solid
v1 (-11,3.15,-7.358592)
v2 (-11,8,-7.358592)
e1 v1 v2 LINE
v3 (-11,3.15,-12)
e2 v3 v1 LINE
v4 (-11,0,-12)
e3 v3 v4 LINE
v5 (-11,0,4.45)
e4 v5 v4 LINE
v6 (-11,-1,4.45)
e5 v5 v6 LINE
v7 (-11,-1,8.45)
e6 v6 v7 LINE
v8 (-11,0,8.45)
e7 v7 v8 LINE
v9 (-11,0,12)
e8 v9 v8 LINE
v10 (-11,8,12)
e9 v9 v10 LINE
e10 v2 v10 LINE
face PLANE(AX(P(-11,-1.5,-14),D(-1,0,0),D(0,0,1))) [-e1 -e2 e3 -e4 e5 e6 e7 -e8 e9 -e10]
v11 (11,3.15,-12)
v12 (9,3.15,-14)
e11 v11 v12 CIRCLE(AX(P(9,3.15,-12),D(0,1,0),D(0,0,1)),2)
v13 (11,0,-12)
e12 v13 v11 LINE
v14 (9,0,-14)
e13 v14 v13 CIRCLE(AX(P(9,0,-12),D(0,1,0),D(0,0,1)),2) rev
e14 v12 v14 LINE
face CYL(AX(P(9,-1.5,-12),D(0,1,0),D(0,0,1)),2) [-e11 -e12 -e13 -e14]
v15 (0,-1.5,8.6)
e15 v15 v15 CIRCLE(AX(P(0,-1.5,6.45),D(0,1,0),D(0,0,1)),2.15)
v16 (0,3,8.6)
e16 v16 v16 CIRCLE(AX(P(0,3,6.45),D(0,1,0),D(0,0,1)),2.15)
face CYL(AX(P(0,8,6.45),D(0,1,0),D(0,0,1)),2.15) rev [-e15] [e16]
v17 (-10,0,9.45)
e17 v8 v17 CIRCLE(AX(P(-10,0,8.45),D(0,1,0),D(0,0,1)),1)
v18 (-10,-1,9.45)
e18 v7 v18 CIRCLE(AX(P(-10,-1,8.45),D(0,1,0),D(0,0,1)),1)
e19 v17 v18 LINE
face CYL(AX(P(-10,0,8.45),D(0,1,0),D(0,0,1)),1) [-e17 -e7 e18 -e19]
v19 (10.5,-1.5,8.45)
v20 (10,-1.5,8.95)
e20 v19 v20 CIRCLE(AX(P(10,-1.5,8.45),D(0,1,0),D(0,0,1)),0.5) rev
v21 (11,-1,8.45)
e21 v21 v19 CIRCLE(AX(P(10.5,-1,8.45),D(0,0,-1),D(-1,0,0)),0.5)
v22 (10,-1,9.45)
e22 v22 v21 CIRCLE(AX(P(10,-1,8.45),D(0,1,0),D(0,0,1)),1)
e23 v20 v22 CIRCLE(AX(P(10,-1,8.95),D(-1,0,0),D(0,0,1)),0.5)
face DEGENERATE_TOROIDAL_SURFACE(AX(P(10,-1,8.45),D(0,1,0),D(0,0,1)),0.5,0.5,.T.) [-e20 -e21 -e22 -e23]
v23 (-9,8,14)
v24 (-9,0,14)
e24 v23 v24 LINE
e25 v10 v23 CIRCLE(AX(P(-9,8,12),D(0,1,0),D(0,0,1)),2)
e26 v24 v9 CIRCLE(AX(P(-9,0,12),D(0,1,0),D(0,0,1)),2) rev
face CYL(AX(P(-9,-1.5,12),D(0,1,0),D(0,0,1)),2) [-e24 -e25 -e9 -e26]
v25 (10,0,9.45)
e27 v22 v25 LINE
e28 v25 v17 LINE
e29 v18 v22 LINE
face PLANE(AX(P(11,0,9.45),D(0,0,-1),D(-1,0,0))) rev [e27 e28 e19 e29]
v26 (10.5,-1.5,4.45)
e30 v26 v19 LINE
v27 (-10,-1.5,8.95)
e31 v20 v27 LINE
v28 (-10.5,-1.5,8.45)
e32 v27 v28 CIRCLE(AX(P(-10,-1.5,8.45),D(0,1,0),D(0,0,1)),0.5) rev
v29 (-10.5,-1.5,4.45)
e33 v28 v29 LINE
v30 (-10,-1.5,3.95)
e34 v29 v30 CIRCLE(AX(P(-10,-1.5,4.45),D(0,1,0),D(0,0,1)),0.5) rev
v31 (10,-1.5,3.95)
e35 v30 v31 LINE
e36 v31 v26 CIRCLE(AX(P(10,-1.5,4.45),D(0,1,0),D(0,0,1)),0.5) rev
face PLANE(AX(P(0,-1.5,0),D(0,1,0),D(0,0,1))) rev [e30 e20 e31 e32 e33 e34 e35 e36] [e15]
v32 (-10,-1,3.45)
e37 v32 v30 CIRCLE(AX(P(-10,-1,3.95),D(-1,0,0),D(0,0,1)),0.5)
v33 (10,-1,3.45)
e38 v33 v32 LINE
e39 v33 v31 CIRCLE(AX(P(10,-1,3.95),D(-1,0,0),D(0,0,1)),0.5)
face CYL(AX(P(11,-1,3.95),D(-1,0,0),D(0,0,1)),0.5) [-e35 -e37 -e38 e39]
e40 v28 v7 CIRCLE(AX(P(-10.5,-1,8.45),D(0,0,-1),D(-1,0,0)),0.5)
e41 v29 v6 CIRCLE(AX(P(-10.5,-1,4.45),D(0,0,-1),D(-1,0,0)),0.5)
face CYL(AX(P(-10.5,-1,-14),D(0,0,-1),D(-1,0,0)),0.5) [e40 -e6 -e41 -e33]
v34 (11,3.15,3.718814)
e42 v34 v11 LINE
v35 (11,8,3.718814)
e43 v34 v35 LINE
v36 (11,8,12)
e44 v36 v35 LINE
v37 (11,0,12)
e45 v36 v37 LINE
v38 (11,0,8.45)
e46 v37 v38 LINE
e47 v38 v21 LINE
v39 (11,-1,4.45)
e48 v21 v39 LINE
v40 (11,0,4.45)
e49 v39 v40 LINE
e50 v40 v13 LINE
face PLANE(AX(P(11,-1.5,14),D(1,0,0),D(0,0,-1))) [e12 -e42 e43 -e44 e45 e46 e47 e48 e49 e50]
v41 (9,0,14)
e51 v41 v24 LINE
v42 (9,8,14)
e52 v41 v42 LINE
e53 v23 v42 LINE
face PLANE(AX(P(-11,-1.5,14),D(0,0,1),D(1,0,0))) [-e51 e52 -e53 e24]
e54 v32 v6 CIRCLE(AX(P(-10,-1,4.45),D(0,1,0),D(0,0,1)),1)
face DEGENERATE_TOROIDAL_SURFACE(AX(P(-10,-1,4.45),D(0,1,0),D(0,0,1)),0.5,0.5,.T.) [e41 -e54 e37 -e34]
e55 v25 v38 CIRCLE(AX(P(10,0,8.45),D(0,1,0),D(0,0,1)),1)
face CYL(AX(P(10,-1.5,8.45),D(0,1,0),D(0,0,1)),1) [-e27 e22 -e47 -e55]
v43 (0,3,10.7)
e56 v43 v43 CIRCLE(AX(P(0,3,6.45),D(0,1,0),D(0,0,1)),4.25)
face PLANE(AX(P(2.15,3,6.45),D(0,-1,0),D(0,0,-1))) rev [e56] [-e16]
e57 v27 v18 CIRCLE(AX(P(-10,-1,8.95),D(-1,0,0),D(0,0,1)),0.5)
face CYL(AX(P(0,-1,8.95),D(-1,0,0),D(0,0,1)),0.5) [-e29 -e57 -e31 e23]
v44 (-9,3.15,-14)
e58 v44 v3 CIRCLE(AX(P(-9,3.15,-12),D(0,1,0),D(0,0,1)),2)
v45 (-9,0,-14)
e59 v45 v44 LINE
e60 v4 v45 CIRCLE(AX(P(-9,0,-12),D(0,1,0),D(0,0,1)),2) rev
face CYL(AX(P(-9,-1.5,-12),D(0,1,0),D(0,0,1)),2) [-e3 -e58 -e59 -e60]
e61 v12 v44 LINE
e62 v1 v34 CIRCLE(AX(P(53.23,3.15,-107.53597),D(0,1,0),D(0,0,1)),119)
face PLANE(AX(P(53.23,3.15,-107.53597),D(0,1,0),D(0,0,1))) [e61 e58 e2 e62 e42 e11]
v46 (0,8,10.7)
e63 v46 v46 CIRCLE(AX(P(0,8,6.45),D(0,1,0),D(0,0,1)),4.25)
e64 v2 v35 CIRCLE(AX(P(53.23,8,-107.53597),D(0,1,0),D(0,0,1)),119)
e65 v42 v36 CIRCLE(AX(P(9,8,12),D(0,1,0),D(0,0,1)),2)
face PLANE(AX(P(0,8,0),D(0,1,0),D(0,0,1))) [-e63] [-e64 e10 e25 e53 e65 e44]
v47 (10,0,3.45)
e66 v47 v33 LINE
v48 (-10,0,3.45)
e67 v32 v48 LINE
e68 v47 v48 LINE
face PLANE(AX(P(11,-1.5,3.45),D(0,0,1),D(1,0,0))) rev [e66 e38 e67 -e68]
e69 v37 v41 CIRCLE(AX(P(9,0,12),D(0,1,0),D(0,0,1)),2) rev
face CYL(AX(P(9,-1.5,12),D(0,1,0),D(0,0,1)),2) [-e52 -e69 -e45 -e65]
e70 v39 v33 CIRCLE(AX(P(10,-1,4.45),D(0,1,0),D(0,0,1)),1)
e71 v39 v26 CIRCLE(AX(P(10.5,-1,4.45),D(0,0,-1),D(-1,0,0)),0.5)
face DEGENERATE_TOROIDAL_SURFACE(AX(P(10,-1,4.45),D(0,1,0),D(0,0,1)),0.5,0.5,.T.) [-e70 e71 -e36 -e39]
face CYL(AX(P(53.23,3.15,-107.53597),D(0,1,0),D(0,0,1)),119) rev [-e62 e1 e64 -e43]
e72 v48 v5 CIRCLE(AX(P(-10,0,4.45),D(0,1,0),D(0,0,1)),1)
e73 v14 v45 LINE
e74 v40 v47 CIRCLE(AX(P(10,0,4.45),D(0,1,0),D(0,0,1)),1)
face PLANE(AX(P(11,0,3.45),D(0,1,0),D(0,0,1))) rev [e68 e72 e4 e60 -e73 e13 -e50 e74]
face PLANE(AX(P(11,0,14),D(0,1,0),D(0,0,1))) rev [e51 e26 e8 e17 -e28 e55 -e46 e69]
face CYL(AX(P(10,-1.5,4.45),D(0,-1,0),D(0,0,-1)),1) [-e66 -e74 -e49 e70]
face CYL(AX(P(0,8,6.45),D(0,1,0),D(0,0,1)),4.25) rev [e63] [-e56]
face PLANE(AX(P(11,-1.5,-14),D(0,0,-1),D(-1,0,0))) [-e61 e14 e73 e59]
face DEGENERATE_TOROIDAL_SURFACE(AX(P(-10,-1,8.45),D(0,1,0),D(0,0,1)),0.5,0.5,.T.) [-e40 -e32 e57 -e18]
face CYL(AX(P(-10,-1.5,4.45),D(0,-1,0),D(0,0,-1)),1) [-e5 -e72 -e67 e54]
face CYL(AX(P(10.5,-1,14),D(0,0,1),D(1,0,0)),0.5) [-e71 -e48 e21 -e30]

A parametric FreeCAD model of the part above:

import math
import FreeCAD as App
import Part
import Sketcher
from FreeCAD import Vector


def edges_at(feature, points):
    """Names of the edges that pass closest to the given points."""
    edges = feature.Shape.Edges
    near = lambda p: min(range(len(edges)), key=lambda i: edges[i].distToShape(Part.Vertex(*p))[0])
    return sorted({f"Edge{near(p) + 1}" for p in points})

doc = App.newDocument("Part")
body = doc.addObject("PartDesign::Body", "Body")

sketch1 = body.newObject("Sketcher::SketchObject", "Sketch")
sketch1.AttachmentSupport = (doc.getObject("XZ_Plane"), [""])
sketch1.MapMode = "FlatFace"
sketch1.AttachmentOffset = App.Placement(Vector(0, 0, -8), App.Rotation())
sketch1.addGeometry(Part.LineSegment(Vector(-11, -14, 0), Vector(-11, 14, 0)), False)
sketch1.addGeometry(Part.LineSegment(Vector(-11, 14, 0), Vector(11, 14, 0)), False)
sketch1.addGeometry(Part.LineSegment(Vector(11, 14, 0), Vector(11, -14, 0)), False)
sketch1.addGeometry(Part.LineSegment(Vector(11, -14, 0), Vector(-11, -14, 0)), False)
sketch1.addConstraint(Sketcher.Constraint("Coincident", 0, 2, 1, 1))
sketch1.addConstraint(Sketcher.Constraint("Coincident", 1, 2, 2, 1))
sketch1.addConstraint(Sketcher.Constraint("Coincident", 2, 2, 3, 1))
sketch1.addConstraint(Sketcher.Constraint("Coincident", 3, 2, 0, 1))
sketch1.addConstraint(Sketcher.Constraint("Vertical", 0))
sketch1.addConstraint(Sketcher.Constraint("Horizontal", 1))
sketch1.addConstraint(Sketcher.Constraint("Vertical", 2))
sketch1.addConstraint(Sketcher.Constraint("Horizontal", 3))
sketch1.addConstraint(Sketcher.Constraint("Symmetric", 0, 2, 2, 2, -1, 1))
sketch1.addConstraint(Sketcher.Constraint("DistanceX", 1, 1, 1, 2, 22.0))
sketch1.addConstraint(Sketcher.Constraint("DistanceY", 0, 1, 0, 2, 28.0))
pad1 = body.newObject("PartDesign::Pad", "Pad")
pad1.Profile = sketch1
pad1.Length = 9.5

sketch2 = body.newObject("Sketcher::SketchObject", "Sketch001")
sketch2.AttachmentSupport = (doc.getObject("YZ_Plane"), [""])
sketch2.MapMode = "FlatFace"
sketch2.AttachmentOffset = App.Placement(Vector(0, 0, -11), App.Rotation())
sketch2.addGeometry(Part.LineSegment(Vector(0, -14, 0), Vector(-1.5, -14, 0)), False)
sketch2.addGeometry(Part.LineSegment(Vector(-1.5, -14, 0), Vector(-1.5, 3.5, 0)), False)
sketch2.addGeometry(Part.LineSegment(Vector(-1.5, 3.5, 0), Vector(0, 3.5, 0)), False)
sketch2.addGeometry(Part.LineSegment(Vector(0, 3.5, 0), Vector(0, -14, 0)), False)
sketch2.addConstraint(Sketcher.Constraint("Coincident", 0, 2, 1, 1))
sketch2.addConstraint(Sketcher.Constraint("Coincident", 1, 2, 2, 1))
sketch2.addConstraint(Sketcher.Constraint("Coincident", 2, 2, 3, 1))
sketch2.addConstraint(Sketcher.Constraint("Coincident", 3, 2, 0, 1))
sketch2.addConstraint(Sketcher.Constraint("Horizontal", 0))
sketch2.addConstraint(Sketcher.Constraint("Vertical", 1))
sketch2.addConstraint(Sketcher.Constraint("Horizontal", 2))
sketch2.addConstraint(Sketcher.Constraint("Vertical", 3))
sketch2.addConstraint(Sketcher.Constraint("PointOnObject", 2, 2, -2))
sketch2.addConstraint(Sketcher.Constraint("DistanceX", 0, 2, 0, 1, 1.5))
sketch2.addConstraint(Sketcher.Constraint("DistanceY", 0, 2, -1, 1, 14.0))
sketch2.addConstraint(Sketcher.Constraint("DistanceY", 1, 1, 1, 2, 17.45))
pocket1 = body.newObject("PartDesign::Pocket", "Pocket")
pocket1.Profile = sketch2
pocket1.Type = "ThroughAll"
pocket1.Reversed = True

sketch3 = body.newObject("Sketcher::SketchObject", "Sketch002")
sketch3.AttachmentSupport = (doc.getObject("XZ_Plane"), [""])
sketch3.MapMode = "FlatFace"
sketch3.AttachmentOffset = App.Placement(Vector(0, 0, -8), App.Rotation())
sketch3.addGeometry(Part.LineSegment(Vector(-11, -14, 0), Vector(-11, -7, 0)), False)
sketch3.addGeometry(Part.ArcOfCircle(Part.Circle(Vector(53, -108, 0), Vector(0, 0, 1), 119), math.radians(110.79), math.radians(122.67)), False)
sketch3.addGeometry(Part.LineSegment(Vector(11, 4, 0), Vector(11, -14, 0)), False)
sketch3.addGeometry(Part.LineSegment(Vector(11, -14, 0), Vector(-11, -14, 0)), False)
sketch3.addConstraint(Sketcher.Constraint("Coincident", 0, 2, 1, 2))
sketch3.addConstraint(Sketcher.Constraint("Coincident", 1, 1, 2, 1))
sketch3.addConstraint(Sketcher.Constraint("Coincident", 2, 2, 3, 1))
sketch3.addConstraint(Sketcher.Constraint("Coincident", 3, 2, 0, 1))
sketch3.addConstraint(Sketcher.Constraint("Vertical", 0))
sketch3.addConstraint(Sketcher.Constraint("Vertical", 2))
sketch3.addConstraint(Sketcher.Constraint("Horizontal", 3))
sketch3.addConstraint(Sketcher.Constraint("Radius", 1, 119.0))
sketch3.addConstraint(Sketcher.Constraint("DistanceX", 3, 2, 3, 1, 22.0))
sketch3.addConstraint(Sketcher.Constraint("DistanceX", 0, 2, -1, 1, 11.0))
sketch3.addConstraint(Sketcher.Constraint("DistanceY", 2, 2, -1, 1, 14.0))
sketch3.addConstraint(Sketcher.Constraint("DistanceX", -1, 1, 1, 3, 53.23))
sketch3.addConstraint(Sketcher.Constraint("DistanceY", 0, 1, 0, 2, 6.641408))
pocket2 = body.newObject("PartDesign::Pocket", "Pocket001")
pocket2.Profile = sketch3
pocket2.Length = 4.85
pocket2.Reversed = True

sketch4 = body.newObject("Sketcher::SketchObject", "Sketch003")
sketch4.AttachmentSupport = (doc.getObject("YZ_Plane"), [""])
sketch4.MapMode = "FlatFace"
sketch4.AttachmentOffset = App.Placement(Vector(0, 0, -11), App.Rotation())
sketch4.addGeometry(Part.LineSegment(Vector(0, 9.4, 0), Vector(-1.5, 9.4, 0)), False)
sketch4.addGeometry(Part.LineSegment(Vector(-1.5, 9.4, 0), Vector(-1.5, 14, 0)), False)
sketch4.addGeometry(Part.LineSegment(Vector(-1.5, 14, 0), Vector(0, 14, 0)), False)
sketch4.addGeometry(Part.LineSegment(Vector(0, 14, 0), Vector(0, 9.4, 0)), False)
sketch4.addConstraint(Sketcher.Constraint("Coincident", 0, 2, 1, 1))
sketch4.addConstraint(Sketcher.Constraint("Coincident", 1, 2, 2, 1))
sketch4.addConstraint(Sketcher.Constraint("Coincident", 2, 2, 3, 1))
sketch4.addConstraint(Sketcher.Constraint("Coincident", 3, 2, 0, 1))
sketch4.addConstraint(Sketcher.Constraint("Horizontal", 0))
sketch4.addConstraint(Sketcher.Constraint("Vertical", 1))
sketch4.addConstraint(Sketcher.Constraint("Horizontal", 2))
sketch4.addConstraint(Sketcher.Constraint("Vertical", 3))
sketch4.addConstraint(Sketcher.Constraint("PointOnObject", 2, 2, -2))
sketch4.addConstraint(Sketcher.Constraint("DistanceX", 0, 2, 0, 1, 1.5))
sketch4.addConstraint(Sketcher.Constraint("DistanceY", -1, 1, 1, 2, 14.0))
sketch4.addConstraint(Sketcher.Constraint("DistanceY", 1, 1, 1, 2, 4.55))
pocket3 = body.newObject("PartDesign::Pocket", "Pocket002")
pocket3.Profile = sketch4
pocket3.Type = "ThroughAll"
pocket3.Reversed = True

sketch5 = body.newObject("Sketcher::SketchObject", "Sketch004")
sketch5.AttachmentSupport = (doc.getObject("XZ_Plane"), [""])
sketch5.MapMode = "FlatFace"
sketch5.AttachmentOffset = App.Placement(Vector(0, 0, -8), App.Rotation())
sketch5.addGeometry(Part.Circle(Vector(0, 6.5, 0), Vector(0, 0, 1), 2.1), False)
sketch5.addConstraint(Sketcher.Constraint("PointOnObject", 0, 3, -2))
sketch5.addConstraint(Sketcher.Constraint("Diameter", 0, 4.3))
sketch5.addConstraint(Sketcher.Constraint("DistanceY", -1, 1, 0, 3, 6.45))
doc.recompute()
hole = body.newObject("PartDesign::Hole", "Hole")
hole.Profile = sketch5
hole.ThreadType = "None"
hole.Diameter = 4.3
hole.DepthType = "Dimension"
hole.Depth = 9.5
hole.DrillPoint = "Flat"
hole.HoleCutType = "Counterbore"
hole.HoleCutDiameter = 8.5
hole.HoleCutDepth = 5
hole.Reversed = True
doc.recompute()

fillet = body.newObject("PartDesign::Fillet", "Fillet")
fillet.Base = (hole, edges_at(hole, [
    (11, -0.75, 3.45),
    (-11, -0.75, 3.45),
    (11, -0.75, 9.45),
    (-11, -0.75, 9.45),
]))
fillet.Radius = 1
doc.recompute()

fillet2 = body.newObject("PartDesign::Fillet", "Fillet001")
fillet2.Base = (fillet, edges_at(fillet, [
    (0, -1.5, 3.45),
    (-11, -1.5, 6.45),
    (11, -1.5, 6.45),
    (0, -1.5, 9.45),
    (10.707, -1.5, 9.157),
    (-10.707, -1.5, 9.157),
    (10.707, -1.5, 3.743),
    (-10.707, -1.5, 3.743),
]))
fillet2.Radius = 0.5
doc.recompute()

fillet3 = body.newObject("PartDesign::Fillet", "Fillet002")
fillet3.Base = (fillet2, edges_at(fillet2, [
    (-11, 1.575, -14),
    (11, 1.575, -14),
    (-11, 4, 14),
    (11, 4, 14),
]))
fillet3.Radius = 2

doc.recompute()
